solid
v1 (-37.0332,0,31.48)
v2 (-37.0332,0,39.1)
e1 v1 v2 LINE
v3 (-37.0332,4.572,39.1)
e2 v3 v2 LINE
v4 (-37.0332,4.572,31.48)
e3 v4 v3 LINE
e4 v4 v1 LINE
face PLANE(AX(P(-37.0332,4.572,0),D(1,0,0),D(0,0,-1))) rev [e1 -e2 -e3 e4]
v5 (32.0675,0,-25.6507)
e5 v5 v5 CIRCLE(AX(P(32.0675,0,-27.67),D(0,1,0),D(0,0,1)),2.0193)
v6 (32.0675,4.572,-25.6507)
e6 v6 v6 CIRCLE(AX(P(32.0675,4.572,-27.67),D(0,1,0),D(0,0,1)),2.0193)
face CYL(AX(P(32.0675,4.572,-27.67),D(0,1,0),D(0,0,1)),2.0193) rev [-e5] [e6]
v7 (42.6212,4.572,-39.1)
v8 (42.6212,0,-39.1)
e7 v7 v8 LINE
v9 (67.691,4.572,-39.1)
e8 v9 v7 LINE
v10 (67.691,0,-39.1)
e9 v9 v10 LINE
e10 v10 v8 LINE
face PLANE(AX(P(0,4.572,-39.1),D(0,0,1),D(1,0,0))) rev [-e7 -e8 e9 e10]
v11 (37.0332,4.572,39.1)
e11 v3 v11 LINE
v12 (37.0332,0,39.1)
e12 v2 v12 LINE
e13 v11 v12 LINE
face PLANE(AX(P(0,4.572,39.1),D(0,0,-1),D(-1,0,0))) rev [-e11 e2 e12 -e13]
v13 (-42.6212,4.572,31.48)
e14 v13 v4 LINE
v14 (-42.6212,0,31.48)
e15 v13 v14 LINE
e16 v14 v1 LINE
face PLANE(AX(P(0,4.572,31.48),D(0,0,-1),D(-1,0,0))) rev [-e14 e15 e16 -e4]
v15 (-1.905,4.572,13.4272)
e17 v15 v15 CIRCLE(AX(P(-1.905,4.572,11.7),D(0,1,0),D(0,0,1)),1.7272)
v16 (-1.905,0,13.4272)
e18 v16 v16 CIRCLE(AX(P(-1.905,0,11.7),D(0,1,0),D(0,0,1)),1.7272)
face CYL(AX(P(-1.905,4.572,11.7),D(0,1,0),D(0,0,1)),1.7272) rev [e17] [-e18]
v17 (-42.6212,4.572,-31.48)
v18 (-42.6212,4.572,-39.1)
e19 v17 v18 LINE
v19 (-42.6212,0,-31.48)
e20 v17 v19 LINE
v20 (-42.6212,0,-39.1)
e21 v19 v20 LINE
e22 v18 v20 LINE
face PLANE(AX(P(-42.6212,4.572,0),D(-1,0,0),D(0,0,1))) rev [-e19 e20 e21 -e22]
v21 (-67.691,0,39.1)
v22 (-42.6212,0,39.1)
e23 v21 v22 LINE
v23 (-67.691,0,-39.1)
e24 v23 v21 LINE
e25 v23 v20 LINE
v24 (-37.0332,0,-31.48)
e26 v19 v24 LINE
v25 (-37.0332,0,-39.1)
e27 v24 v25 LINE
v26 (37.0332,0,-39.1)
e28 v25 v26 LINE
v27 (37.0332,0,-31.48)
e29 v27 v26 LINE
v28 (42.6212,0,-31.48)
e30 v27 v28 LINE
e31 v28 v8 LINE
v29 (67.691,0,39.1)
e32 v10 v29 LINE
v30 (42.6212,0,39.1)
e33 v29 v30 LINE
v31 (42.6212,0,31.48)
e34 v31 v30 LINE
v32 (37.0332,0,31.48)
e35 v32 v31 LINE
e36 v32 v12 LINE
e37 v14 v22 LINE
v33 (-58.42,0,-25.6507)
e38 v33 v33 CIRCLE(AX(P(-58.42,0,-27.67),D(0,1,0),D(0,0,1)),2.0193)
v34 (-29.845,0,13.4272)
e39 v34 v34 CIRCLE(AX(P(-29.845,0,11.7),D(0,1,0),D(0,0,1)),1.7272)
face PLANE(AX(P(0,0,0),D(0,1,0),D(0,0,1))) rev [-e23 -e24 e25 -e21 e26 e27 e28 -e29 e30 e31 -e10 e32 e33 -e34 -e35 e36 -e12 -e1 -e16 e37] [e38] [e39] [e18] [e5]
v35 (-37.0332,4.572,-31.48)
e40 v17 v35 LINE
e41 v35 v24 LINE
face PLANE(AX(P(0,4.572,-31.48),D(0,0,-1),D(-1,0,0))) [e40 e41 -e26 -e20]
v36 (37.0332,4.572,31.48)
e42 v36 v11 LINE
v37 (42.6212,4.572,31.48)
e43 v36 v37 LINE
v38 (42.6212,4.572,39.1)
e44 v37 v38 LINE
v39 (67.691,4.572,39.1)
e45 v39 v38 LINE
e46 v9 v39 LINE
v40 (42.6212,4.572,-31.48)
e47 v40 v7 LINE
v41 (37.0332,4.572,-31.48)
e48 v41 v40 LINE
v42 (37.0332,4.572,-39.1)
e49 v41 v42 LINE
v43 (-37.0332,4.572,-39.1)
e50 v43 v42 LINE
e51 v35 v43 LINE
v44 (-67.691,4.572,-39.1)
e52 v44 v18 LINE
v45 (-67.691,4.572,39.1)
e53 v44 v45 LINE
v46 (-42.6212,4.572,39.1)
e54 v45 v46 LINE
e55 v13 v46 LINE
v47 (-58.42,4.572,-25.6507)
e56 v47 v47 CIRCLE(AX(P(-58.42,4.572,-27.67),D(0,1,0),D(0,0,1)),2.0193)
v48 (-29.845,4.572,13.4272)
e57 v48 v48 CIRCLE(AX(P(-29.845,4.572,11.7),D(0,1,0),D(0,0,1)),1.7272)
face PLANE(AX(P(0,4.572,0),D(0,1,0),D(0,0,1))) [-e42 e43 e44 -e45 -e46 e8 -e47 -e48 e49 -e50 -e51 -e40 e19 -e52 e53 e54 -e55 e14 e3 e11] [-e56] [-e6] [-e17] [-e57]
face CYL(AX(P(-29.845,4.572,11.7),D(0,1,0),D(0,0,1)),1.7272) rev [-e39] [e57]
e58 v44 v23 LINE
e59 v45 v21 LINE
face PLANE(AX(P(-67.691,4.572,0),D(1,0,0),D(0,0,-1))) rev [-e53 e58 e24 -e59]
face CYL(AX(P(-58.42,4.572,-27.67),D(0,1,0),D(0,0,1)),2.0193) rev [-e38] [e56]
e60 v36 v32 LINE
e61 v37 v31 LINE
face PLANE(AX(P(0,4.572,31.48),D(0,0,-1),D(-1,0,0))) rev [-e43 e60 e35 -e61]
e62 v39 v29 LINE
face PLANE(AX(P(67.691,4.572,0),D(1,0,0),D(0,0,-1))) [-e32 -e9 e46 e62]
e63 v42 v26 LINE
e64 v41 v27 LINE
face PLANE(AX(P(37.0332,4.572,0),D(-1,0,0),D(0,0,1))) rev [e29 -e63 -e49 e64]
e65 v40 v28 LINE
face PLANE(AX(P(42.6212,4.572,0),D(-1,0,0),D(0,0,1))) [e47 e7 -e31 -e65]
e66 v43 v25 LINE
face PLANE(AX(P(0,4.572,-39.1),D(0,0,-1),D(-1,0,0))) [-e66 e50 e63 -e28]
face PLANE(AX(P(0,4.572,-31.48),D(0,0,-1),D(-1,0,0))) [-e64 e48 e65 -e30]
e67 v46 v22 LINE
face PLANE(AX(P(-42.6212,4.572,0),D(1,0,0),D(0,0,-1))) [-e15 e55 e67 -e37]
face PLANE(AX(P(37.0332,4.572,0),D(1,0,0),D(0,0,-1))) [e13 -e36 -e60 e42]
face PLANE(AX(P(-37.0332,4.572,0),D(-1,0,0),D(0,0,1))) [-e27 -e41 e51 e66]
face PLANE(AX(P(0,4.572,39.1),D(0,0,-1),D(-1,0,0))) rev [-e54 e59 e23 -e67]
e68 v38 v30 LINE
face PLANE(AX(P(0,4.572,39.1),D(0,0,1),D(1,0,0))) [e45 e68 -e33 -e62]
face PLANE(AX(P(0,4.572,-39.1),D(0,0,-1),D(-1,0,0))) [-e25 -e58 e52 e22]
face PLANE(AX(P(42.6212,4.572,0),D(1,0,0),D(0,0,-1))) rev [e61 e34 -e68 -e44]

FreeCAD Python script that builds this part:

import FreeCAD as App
import Part
import Sketcher
Q = App.Units.Quantity

doc = App.newDocument("Part")
body = doc.addObject("PartDesign::Body", "Body")

sketch1 = doc.addObject("Sketcher::SketchObject", "Sketch")
body.addObject(sketch1)
sketch1.AttachmentSupport = (doc.XZ_Plane, [""])
sketch1.MapMode = "FlatFace"
sketch1.addGeometry([
    Part.LineSegment(App.Vector(-42.6212, 31.48, 0), App.Vector(-37.0332, 31.48, 0)),
    Part.LineSegment(App.Vector(-37.0332, 31.48, 0), App.Vector(-37.0332, 39.1, 0)),
    Part.LineSegment(App.Vector(-37.0332, 39.1, 0), App.Vector(37.0332, 39.1, 0)),
    Part.LineSegment(App.Vector(37.0332, 39.1, 0), App.Vector(37.0332, 31.48, 0)),
    Part.LineSegment(App.Vector(37.0332, 31.48, 0), App.Vector(42.6212, 31.48, 0)),
    Part.LineSegment(App.Vector(42.6212, 31.48, 0), App.Vector(42.6212, 39.1, 0)),
    Part.LineSegment(App.Vector(42.6212, 39.1, 0), App.Vector(67.691, 39.1, 0)),
    Part.LineSegment(App.Vector(67.691, 39.1, 0), App.Vector(67.691, -39.1, 0)),
    Part.LineSegment(App.Vector(67.691, -39.1, 0), App.Vector(42.6212, -39.1, 0)),
    Part.LineSegment(App.Vector(42.6212, -39.1, 0), App.Vector(42.6212, -31.48, 0)),
    Part.LineSegment(App.Vector(42.6212, -31.48, 0), App.Vector(37.0332, -31.48, 0)),
    Part.LineSegment(App.Vector(37.0332, -31.48, 0), App.Vector(37.0332, -39.1, 0)),
    Part.LineSegment(App.Vector(37.0332, -39.1, 0), App.Vector(-37.0332, -39.1, 0)),
    Part.LineSegment(App.Vector(-37.0332, -39.1, 0), App.Vector(-37.0332, -31.48, 0)),
    Part.LineSegment(App.Vector(-37.0332, -31.48, 0), App.Vector(-42.6212, -31.48, 0)),
    Part.LineSegment(App.Vector(-42.6212, -31.48, 0), App.Vector(-42.6212, -39.1, 0)),
    Part.LineSegment(App.Vector(-42.6212, -39.1, 0), App.Vector(-67.691, -39.1, 0)),
    Part.LineSegment(App.Vector(-67.691, -39.1, 0), App.Vector(-67.691, 39.1, 0)),
    Part.LineSegment(App.Vector(-67.691, 39.1, 0), App.Vector(-42.6212, 39.1, 0)),
    Part.LineSegment(App.Vector(-42.6212, 39.1, 0), App.Vector(-42.6212, 31.48, 0)),
], False)
sketch1.addConstraint([
    Sketcher.Constraint("Coincident", 0, 2, 1, 1),
    Sketcher.Constraint("Coincident", 1, 2, 2, 1),
    Sketcher.Constraint("Coincident", 2, 2, 3, 1),
    Sketcher.Constraint("Coincident", 3, 2, 4, 1),
    Sketcher.Constraint("Coincident", 4, 2, 5, 1),
    Sketcher.Constraint("Coincident", 5, 2, 6, 1),
    Sketcher.Constraint("Coincident", 6, 2, 7, 1),
    Sketcher.Constraint("Coincident", 7, 2, 8, 1),
    Sketcher.Constraint("Coincident", 8, 2, 9, 1),
    Sketcher.Constraint("Coincident", 9, 2, 10, 1),
    Sketcher.Constraint("Coincident", 10, 2, 11, 1),
    Sketcher.Constraint("Coincident", 11, 2, 12, 1),
    Sketcher.Constraint("Coincident", 12, 2, 13, 1),
    Sketcher.Constraint("Coincident", 13, 2, 14, 1),
    Sketcher.Constraint("Coincident", 14, 2, 15, 1),
    Sketcher.Constraint("Coincident", 15, 2, 16, 1),
    Sketcher.Constraint("Coincident", 16, 2, 17, 1),
    Sketcher.Constraint("Coincident", 17, 2, 18, 1),
    Sketcher.Constraint("Coincident", 18, 2, 19, 1),
    Sketcher.Constraint("Coincident", 19, 2, 0, 1),
    Sketcher.Constraint("Horizontal", 0),
    Sketcher.Constraint("Vertical", 1),
    Sketcher.Constraint("Horizontal", 2),
    Sketcher.Constraint("Vertical", 3),
    Sketcher.Constraint("Horizontal", 4),
    Sketcher.Constraint("Vertical", 5),
    Sketcher.Constraint("Horizontal", 6),
    Sketcher.Constraint("Vertical", 7),
    Sketcher.Constraint("Horizontal", 8),
    Sketcher.Constraint("Vertical", 9),
    Sketcher.Constraint("Horizontal", 10),
    Sketcher.Constraint("Vertical", 11),
    Sketcher.Constraint("Horizontal", 12),
    Sketcher.Constraint("Vertical", 13),
    Sketcher.Constraint("Horizontal", 14),
    Sketcher.Constraint("Vertical", 15),
    Sketcher.Constraint("Horizontal", 16),
    Sketcher.Constraint("Vertical", 17),
    Sketcher.Constraint("Horizontal", 18),
    Sketcher.Constraint("Vertical", 19),
    Sketcher.Constraint("Symmetric", 0, 2, 10, 2, -1, 1),
    Sketcher.Constraint("Symmetric", 2, 2, 12, 2, -1, 1),
    Sketcher.Constraint("Symmetric", 4, 2, 14, 2, -1, 1),
    Sketcher.Constraint("Symmetric", 6, 2, 16, 2, -1, 1),
    Sketcher.Constraint("Symmetric", 8, 2, 18, 2, -1, 1),
    Sketcher.Constraint("Symmetric", 0, 2, 3, 2, -2),
    Sketcher.Constraint("Symmetric", 8, 2, 15, 2, -2),
    Sketcher.Constraint("Horizontal", 2, 2, 5, 2),
    Sketcher.Constraint("DistanceY", 1, 1, 1, 2, Q("0.3 in")),
    Sketcher.Constraint("DistanceX", 0, 1, 0, 2, Q("0.22 in")),
    Sketcher.Constraint("DistanceX", 2, 1, 2, 2, Q("2.916 in")),
    Sketcher.Constraint("DistanceX", 6, 1, 6, 2, Q("0.987 in")),
    Sketcher.Constraint("DistanceY", 7, 2, 7, 1, 78.2),
])
pad1 = doc.addObject("PartDesign::Pad", "Pad")
body.addObject(pad1)
pad1.Profile = sketch1
pad1.Length = Q("0.18 in")
pad1.Reversed = True

sketch2 = doc.addObject("Sketcher::SketchObject", "Sketch001")
body.addObject(sketch2)
sketch2.AttachmentSupport = (doc.XZ_Plane, [""])
sketch2.MapMode = "FlatFace"
sketch2.AttachmentOffset = App.Placement(App.Vector(0, 0, -0.18 * 25.4), App.Rotation())
sketch2.addGeometry([
    Part.Circle(App.Vector(-58.42, -27.67, 0), App.Vector(0, 0, 1), 2.0193),
    Part.Circle(App.Vector(32.0675, -27.67, 0), App.Vector(0, 0, 1), 2.0193),
], False)
sketch2.addConstraint([
    Sketcher.Constraint("Equal", 0, 1),
    Sketcher.Constraint("Horizontal", 0, 3, 1, 3),
    Sketcher.Constraint("Diameter", 0, Q("0.159 in")),
    Sketcher.Constraint("DistanceX", 0, 3, -1, 1, Q("2.3 in")),
    Sketcher.Constraint("DistanceX", 0, 3, 1, 3, Q("3.5625 in")),
    Sketcher.Constraint("DistanceY", 0, 3, -1, 1, 27.67),
])
doc.recompute()
hole = doc.addObject("PartDesign::Hole", "Hole")
body.addObject(hole)
hole.Profile = sketch2
hole.ThreadType = "None"
hole.Diameter = Q("0.159 in")
hole.DepthType = "ThroughAll"
hole.Reversed = True

sketch3 = doc.addObject("Sketcher::SketchObject", "Sketch002")
body.addObject(sketch3)
sketch3.AttachmentSupport = (doc.XZ_Plane, [""])
sketch3.MapMode = "FlatFace"
sketch3.AttachmentOffset = App.Placement(App.Vector(0, 0, -0.18 * 25.4), App.Rotation())
sketch3.addGeometry([
    Part.Circle(App.Vector(-29.845, 11.7, 0), App.Vector(0, 0, 1), 1.7272),
    Part.Circle(App.Vector(-1.905, 11.7, 0), App.Vector(0, 0, 1), 1.7272),
], False)
sketch3.addConstraint([
    Sketcher.Constraint("Equal", 0, 1),
    Sketcher.Constraint("Horizontal", 0, 3, 1, 3),
    Sketcher.Constraint("Diameter", 0, Q("0.136 in")),
    Sketcher.Constraint("DistanceX", 0, 3, 1, 3, Q("1.1 in")),
    Sketcher.Constraint("DistanceX", 0, 3, -1, 1, Q("1.175 in")),
    Sketcher.Constraint("DistanceY", -1, 1, 0, 3, 11.7),
])
doc.recompute()
hole2 = doc.addObject("PartDesign::Hole", "Hole001")
body.addObject(hole2)
hole2.Profile = sketch3
hole2.ThreadType = "None"
hole2.Diameter = Q("0.136 in")
hole2.DepthType = "ThroughAll"
hole2.Reversed = True

doc.recompute()
